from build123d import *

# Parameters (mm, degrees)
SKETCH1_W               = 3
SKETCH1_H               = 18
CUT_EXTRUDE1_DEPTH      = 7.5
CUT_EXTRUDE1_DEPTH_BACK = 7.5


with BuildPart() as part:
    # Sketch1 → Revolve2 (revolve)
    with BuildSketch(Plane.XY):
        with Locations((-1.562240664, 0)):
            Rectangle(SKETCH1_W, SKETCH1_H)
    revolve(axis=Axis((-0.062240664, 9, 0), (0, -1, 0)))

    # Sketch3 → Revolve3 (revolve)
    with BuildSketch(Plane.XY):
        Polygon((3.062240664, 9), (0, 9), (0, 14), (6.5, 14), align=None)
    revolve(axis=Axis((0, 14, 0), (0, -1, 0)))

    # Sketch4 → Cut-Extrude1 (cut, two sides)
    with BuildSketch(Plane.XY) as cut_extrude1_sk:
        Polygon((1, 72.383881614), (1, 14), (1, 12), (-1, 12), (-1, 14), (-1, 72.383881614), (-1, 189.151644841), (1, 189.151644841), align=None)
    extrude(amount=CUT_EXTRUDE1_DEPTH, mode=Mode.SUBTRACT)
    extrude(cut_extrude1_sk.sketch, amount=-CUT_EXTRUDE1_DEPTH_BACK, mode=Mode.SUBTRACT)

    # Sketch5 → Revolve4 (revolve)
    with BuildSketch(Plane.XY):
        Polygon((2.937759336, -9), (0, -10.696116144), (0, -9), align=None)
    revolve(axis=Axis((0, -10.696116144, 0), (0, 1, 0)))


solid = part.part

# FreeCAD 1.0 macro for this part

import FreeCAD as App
import Part
import Sketcher

V = App.Vector
Q = App.Units.Quantity


def add_polygon(sketch, points):
    """Adds a closed chain of lines whose ends are joined by coincident constraints."""
    first, n = sketch.GeometryCount, len(points)
    for a, b in zip(points, points[1:] + points[:1]):
        sketch.addGeometry(Part.LineSegment(App.Vector(*a, 0), App.Vector(*b, 0)), False)
    for i in range(n):
        sketch.addConstraint(Sketcher.Constraint("Coincident", first + i, 2, first + (i + 1) % n, 1))

doc = App.newDocument("Part")
params = doc.addObject("Spreadsheet::Sheet", "Params")
for row, (alias, value) in enumerate([
    ("sketch1_width", "3 mm"),
    ("sketch1_height", "18 mm"),
    ("revolution_angle", "360 deg"),
    ("sketch2_height", "5 mm"),
    ("sketch2_width", "6.5 mm"),
    ("revolution2_angle", "360 deg"),
    ("sketch3_width", "2 mm"),
    ("revolution3_angle", "360 deg"),
], start=1):
    params.set(f"A{row}", alias)
    params.set(f"B{row}", "=" + value)
    params.setAlias(f"B{row}", alias)

body = doc.addObject("PartDesign::Body", "Body")

sketch1 = body.newObject("Sketcher::SketchObject", "Sketch")
sketch1.AttachmentSupport = (doc.getObject("XY_Plane"), [""])
sketch1.MapMode = "FlatFace"
add_polygon(sketch1, [(-3.1, 9), (-3.1, -9), (-0.1, -9), (-0.1, 9)])
sketch1.addGeometry(Part.LineSegment(V(-0.1, 9, 0), V(-0.1, -9, 0)), True)
sketch1.addConstraint(Sketcher.Constraint("Vertical", 0))
sketch1.addConstraint(Sketcher.Constraint("Horizontal", 1))
sketch1.addConstraint(Sketcher.Constraint("Vertical", 2))
sketch1.addConstraint(Sketcher.Constraint("Horizontal", 3))
sketch1.addConstraint(Sketcher.Constraint("Vertical", 4))
sketch1.addConstraint(Sketcher.Constraint("Coincident", 4, 1, 2, 2))
sketch1.addConstraint(Sketcher.Constraint("Horizontal", 0, 2, 4, 2))
sketch1.addConstraint(Sketcher.Constraint("DistanceX", 1, 1, 1, 2, 3.0))
sketch1.addConstraint(Sketcher.Constraint("DistanceY", 0, 2, 0, 1, 18.0))
sketch1.addConstraint(Sketcher.Constraint("DistanceY", 0, 2, -1, 1, 9.0))
sketch1.addConstraint(Sketcher.Constraint("DistanceX", 0, 2, -1, 1, 3.062241))
sketch1.setExpression("Constraints[11]", "Params.sketch1_width")
sketch1.setExpression("Constraints[12]", "Params.sketch1_height")
revolution = body.newObject("PartDesign::Revolution", "Revolution")
revolution.Profile = sketch1
revolution.ReferenceAxis = (sketch1, ["Axis0"])
revolution.setExpression("Angle", "Params.revolution_angle")

sketch2 = body.newObject("Sketcher::SketchObject", "Sketch001")
sketch2.AttachmentSupport = (doc.getObject("XY_Plane"), [""])
sketch2.MapMode = "FlatFace"
add_polygon(sketch2, [(0, 9), (3.1, 9), (6.5, 14), (0, 14)])
sketch2.addConstraint(Sketcher.Constraint("Horizontal", 0))
sketch2.addConstraint(Sketcher.Constraint("Horizontal", 2))
sketch2.addConstraint(Sketcher.Constraint("Vertical", 3))
sketch2.addConstraint(Sketcher.Constraint("PointOnObject", 2, 2, -2))
sketch2.addConstraint(Sketcher.Constraint("DistanceY", 3, 2, 3, 1, 5.0))
sketch2.addConstraint(Sketcher.Constraint("DistanceX", 2, 2, 2, 1, 6.5))
sketch2.addConstraint(Sketcher.Constraint("DistanceY", -1, 1, 0, 2, 9.0))
sketch2.addConstraint(Sketcher.Constraint("Distance", 1, 6.067799))
sketch2.setExpression("Constraints[8]", "Params.sketch2_height")
sketch2.setExpression("Constraints[9]", "Params.sketch2_width")
revolution2 = body.newObject("PartDesign::Revolution", "Revolution001")
revolution2.Profile = sketch2
revolution2.ReferenceAxis = (sketch2, ["V_Axis"])
revolution2.setExpression("Angle", "Params.revolution2_angle")

sketch3 = body.newObject("Sketcher::SketchObject", "Sketch002")
sketch3.AttachmentSupport = (doc.getObject("XY_Plane"), [""])
sketch3.MapMode = "FlatFace"
add_polygon(sketch3, [(1, 12), (1, 189.2), (-1, 189.2), (-1, 12)])
sketch3.addConstraint(Sketcher.Constraint("Vertical", 0))
sketch3.addConstraint(Sketcher.Constraint("Horizontal", 1))
sketch3.addConstraint(Sketcher.Constraint("Vertical", 2))
sketch3.addConstraint(Sketcher.Constraint("Horizontal", 3))
sketch3.addConstraint(Sketcher.Constraint("DistanceX", 1, 2, 1, 1, 2.0))
sketch3.addConstraint(Sketcher.Constraint("DistanceX", -1, 1, 0, 2, 1.0))
sketch3.addConstraint(Sketcher.Constraint("DistanceY", -1, 1, 2, 2, 12.0))
sketch3.addConstraint(Sketcher.Constraint("DistanceY", 0, 1, 0, 2, 177.151645))
sketch3.setExpression("Constraints[8]", "Params.sketch3_width")
pocket1 = body.newObject("PartDesign::Pocket", "Pocket")
pocket1.Profile = sketch3
pocket1.Type = "ThroughAll"
pocket1.Midplane = True

sketch4 = body.newObject("Sketcher::SketchObject", "Sketch003")
sketch4.AttachmentSupport = (doc.getObject("XY_Plane"), [""])
sketch4.MapMode = "FlatFace"
add_polygon(sketch4, [(0, -10.7), (2.9, -9), (0, -9)])
sketch4.addConstraint(Sketcher.Constraint("Horizontal", 1))
sketch4.addConstraint(Sketcher.Constraint("Vertical", 2))
sketch4.addConstraint(Sketcher.Constraint("PointOnObject", 1, 2, -2))
sketch4.addConstraint(Sketcher.Constraint("Angle", 0, Q("30 deg")))
sketch4.addConstraint(Sketcher.Constraint("DistanceY", 0, 2, -1, 1, 9.0))
sketch4.addConstraint(Sketcher.Constraint("DistanceX", 1, 2, 1, 1, 2.937759))
revolution3 = body.newObject("PartDesign::Revolution", "Revolution002")
revolution3.Profile = sketch4
revolution3.ReferenceAxis = (sketch4, ["V_Axis"])
revolution3.setExpression("Angle", "Params.revolution3_angle")

doc.recompute()
